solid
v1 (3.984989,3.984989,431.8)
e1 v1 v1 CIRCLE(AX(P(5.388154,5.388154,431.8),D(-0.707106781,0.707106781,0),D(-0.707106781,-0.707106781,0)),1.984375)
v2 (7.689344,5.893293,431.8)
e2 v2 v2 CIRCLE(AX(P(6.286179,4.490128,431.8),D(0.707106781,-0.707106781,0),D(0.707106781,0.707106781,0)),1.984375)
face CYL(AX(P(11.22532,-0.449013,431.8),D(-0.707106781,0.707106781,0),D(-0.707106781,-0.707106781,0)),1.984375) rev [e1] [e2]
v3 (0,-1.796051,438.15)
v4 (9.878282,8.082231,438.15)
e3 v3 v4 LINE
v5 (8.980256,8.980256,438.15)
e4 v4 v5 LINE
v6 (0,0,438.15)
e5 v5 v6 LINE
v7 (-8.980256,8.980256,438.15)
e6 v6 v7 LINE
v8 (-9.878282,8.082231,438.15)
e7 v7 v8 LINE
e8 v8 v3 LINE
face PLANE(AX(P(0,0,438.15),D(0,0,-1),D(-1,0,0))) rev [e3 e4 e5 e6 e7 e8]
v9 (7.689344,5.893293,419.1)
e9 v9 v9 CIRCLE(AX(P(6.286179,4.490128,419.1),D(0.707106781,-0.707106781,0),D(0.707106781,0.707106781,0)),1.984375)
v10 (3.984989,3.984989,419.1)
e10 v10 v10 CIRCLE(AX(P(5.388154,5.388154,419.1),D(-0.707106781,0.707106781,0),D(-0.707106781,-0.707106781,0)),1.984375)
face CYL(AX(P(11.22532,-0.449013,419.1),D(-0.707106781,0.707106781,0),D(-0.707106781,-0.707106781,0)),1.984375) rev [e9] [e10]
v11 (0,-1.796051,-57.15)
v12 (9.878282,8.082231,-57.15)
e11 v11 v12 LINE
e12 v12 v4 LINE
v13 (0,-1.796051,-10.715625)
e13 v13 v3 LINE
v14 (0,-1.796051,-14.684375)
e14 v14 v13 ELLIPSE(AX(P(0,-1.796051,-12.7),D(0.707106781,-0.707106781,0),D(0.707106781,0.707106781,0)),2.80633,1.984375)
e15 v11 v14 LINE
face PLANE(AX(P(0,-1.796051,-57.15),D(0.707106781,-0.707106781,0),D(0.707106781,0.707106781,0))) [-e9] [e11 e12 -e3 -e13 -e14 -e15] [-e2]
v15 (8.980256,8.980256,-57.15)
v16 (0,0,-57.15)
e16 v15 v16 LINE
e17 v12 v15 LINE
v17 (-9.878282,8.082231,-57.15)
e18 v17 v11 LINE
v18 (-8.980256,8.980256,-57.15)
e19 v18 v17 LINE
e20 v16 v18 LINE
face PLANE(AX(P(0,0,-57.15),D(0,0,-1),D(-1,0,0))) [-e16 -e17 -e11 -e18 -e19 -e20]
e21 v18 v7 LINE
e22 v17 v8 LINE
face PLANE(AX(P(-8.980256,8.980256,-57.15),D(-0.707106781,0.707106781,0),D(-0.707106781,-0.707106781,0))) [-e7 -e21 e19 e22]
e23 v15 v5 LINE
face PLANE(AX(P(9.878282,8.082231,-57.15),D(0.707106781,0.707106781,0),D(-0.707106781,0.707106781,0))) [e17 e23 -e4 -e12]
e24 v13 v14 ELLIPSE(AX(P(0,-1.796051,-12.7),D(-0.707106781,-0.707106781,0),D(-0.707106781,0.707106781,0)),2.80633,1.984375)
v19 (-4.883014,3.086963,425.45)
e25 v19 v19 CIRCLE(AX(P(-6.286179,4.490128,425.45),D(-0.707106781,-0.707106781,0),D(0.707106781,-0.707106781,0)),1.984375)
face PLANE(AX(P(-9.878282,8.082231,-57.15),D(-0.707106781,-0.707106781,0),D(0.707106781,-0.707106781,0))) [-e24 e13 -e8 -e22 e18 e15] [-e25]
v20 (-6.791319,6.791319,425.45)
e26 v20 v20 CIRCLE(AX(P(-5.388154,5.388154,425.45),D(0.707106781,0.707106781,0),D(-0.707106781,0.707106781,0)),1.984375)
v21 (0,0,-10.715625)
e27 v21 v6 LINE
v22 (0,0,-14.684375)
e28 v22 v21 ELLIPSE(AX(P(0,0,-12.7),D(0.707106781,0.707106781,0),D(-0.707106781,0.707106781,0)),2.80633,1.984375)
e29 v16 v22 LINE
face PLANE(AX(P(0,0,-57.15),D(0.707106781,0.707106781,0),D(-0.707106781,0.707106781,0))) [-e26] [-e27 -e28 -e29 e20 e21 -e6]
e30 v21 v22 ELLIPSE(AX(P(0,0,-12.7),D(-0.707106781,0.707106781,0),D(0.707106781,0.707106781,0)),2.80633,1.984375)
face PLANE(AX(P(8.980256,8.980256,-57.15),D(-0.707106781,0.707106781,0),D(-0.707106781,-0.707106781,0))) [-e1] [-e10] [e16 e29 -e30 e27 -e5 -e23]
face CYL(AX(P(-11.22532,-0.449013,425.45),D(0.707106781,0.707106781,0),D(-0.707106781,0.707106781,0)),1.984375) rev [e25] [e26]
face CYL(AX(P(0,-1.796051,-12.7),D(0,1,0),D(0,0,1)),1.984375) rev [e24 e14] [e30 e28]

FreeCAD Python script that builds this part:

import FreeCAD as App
import Part
import Sketcher

V = App.Vector
Q = App.Units.Quantity


def add_polygon(sketch, points):
    """Adds a closed chain of lines whose ends are joined by coincident constraints."""
    first, n = sketch.GeometryCount, len(points)
    for a, b in zip(points, points[1:] + points[:1]):
        sketch.addGeometry(Part.LineSegment(App.Vector(*a, 0), App.Vector(*b, 0)), False)
    for i in range(n):
        sketch.addConstraint(Sketcher.Constraint("Coincident", first + i, 2, first + (i + 1) % n, 1))

doc = App.newDocument("Part")
body = doc.addObject("PartDesign::Body", "Body")

# Sketch on XY plane
sketch1 = body.newObject("Sketcher::SketchObject", "Sketch")
sketch1.AttachmentSupport = (doc.getObject("XY_Plane"), [""])
sketch1.MapMode = "FlatFace"
add_polygon(sketch1, [(0, 0), (-8.980256, 8.980256), (-9.878282, 8.082231), (0, -1.796051), (9.878282, 8.082231), (8.980256, 8.980256)])  # lines 0-5
sketch1.addConstraint(Sketcher.Constraint("Coincident", 5, 2, -1, 1))
sketch1.addConstraint(Sketcher.Constraint("Symmetric", 1, 2, 3, 2, -2))
sketch1.addConstraint(Sketcher.Constraint("Symmetric", 0, 2, 4, 2, -2))
sketch1.addConstraint(Sketcher.Constraint("PointOnObject", 2, 2, -2))
sketch1.addConstraint(Sketcher.Constraint("Perpendicular", 0, 1))
sketch1.addConstraint(Sketcher.Constraint("Perpendicular", 1, 2))
sketch1.addConstraint(Sketcher.Constraint("Perpendicular", 2, 3))
sketch1.addConstraint(Sketcher.Constraint("Distance", 0, Q("0.5 in")))
sketch1.addConstraint(Sketcher.Constraint("Distance", 1, Q("0.05 in")))
pad1 = body.newObject("PartDesign::Pad", "Pad")
pad1.Profile = sketch1
pad1.Type = "TwoLengths"
pad1.Length = Q("17.25 in")
pad1.Length2 = Q("2.25 in")

# Sketch on an angled plane
sketch2 = body.newObject("Sketcher::SketchObject", "Sketch001")
sketch2.Placement = App.Placement(V(0, 0, 0), App.Rotation(V(0, 0, 1), V(0.707106781, 0.707106781, 0), V(-0.707106781, 0.707106781, 0), "ZXY"))
sketch2.addGeometry(Part.Circle(V(431.8, 7.62, 0), V(0, 0, 1), 1.984375), False)
sketch2.addGeometry(Part.Circle(V(419.1, 7.62, 0), V(0, 0, 1), 1.984375), False)
sketch2.addConstraint(Sketcher.Constraint("Equal", 0, 1))
sketch2.addConstraint(Sketcher.Constraint("Horizontal", 0, 3, 1, 3))
sketch2.addConstraint(Sketcher.Constraint("Diameter", 0, Q("0.15625 in")))
sketch2.addConstraint(Sketcher.Constraint("DistanceX", -1, 1, 0, 3, Q("17 in")))
sketch2.addConstraint(Sketcher.Constraint("DistanceY", -1, 1, 0, 3, Q("0.3 in")))
sketch2.addConstraint(Sketcher.Constraint("DistanceX", -1, 1, 1, 3, Q("16.5 in")))
pocket1 = body.newObject("PartDesign::Pocket", "Pocket")
pocket1.Profile = sketch2
pocket1.Type = "ThroughAll"

# Sketch on an angled plane
sketch3 = body.newObject("Sketcher::SketchObject", "Sketch002")
sketch3.Placement = App.Placement(V(0, 0, 0), App.Rotation(V(0, 0, -1), V(-0.707106781, 0.707106781, 0), V(0.707106781, 0.707106781, 0), "ZXY"))
sketch3.addGeometry(Part.Circle(V(-425.45, 7.62, 0), V(0, 0, 1), 1.984375), False)
sketch3.addConstraint(Sketcher.Constraint("Diameter", 0, Q("0.15625 in")))
sketch3.addConstraint(Sketcher.Constraint("DistanceY", -1, 1, 0, 3, Q("0.3 in")))
sketch3.addConstraint(Sketcher.Constraint("DistanceX", 0, 3, -1, 1, Q("16.75 in")))
pocket2 = body.newObject("PartDesign::Pocket", "Pocket001")
pocket2.Profile = sketch3
pocket2.Type = "ThroughAll"

# Sketch on XZ plane
sketch4 = body.newObject("Sketcher::SketchObject", "Sketch003")
sketch4.AttachmentSupport = (doc.getObject("XZ_Plane"), [""])
sketch4.MapMode = "FlatFace"
sketch4.addGeometry(Part.Circle(V(0, -12.7, 0), V(0, 0, 1), 1.984375), False)
sketch4.addConstraint(Sketcher.Constraint("PointOnObject", 0, 3, -2))
sketch4.addConstraint(Sketcher.Constraint("Diameter", 0, Q("0.15625 in")))
sketch4.addConstraint(Sketcher.Constraint("DistanceY", 0, 3, -1, 1, Q("0.5 in")))
pocket3 = body.newObject("PartDesign::Pocket", "Pocket002")
pocket3.Profile = sketch4
pocket3.Type = "ThroughAll"
pocket3.Midplane = True

doc.recompute()
